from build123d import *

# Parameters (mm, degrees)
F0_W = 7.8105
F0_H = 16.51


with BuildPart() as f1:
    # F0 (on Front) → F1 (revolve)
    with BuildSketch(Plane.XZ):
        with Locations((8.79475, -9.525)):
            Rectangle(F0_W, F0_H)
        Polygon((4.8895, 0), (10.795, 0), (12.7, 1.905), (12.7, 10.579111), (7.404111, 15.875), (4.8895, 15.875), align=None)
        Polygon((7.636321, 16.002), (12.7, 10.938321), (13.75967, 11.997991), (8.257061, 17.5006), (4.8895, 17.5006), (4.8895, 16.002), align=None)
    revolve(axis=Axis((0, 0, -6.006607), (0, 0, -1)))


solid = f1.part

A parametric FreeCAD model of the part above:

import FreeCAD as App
import Part
import Sketcher
from FreeCAD import Vector
Q = App.Units.Quantity


def add_polygon(sketch, points):
    """Adds a closed chain of lines whose ends are joined by coincident constraints."""
    first, n = sketch.GeometryCount, len(points)
    for a, b in zip(points, points[1:] + points[:1]):
        sketch.addGeometry(Part.LineSegment(App.Vector(*a, 0), App.Vector(*b, 0)), False)
    for i in range(n):
        sketch.addConstraint(Sketcher.Constraint("Coincident", first + i, 2, first + (i + 1) % n, 1))

doc = App.newDocument("Part")
params = doc.addObject("Spreadsheet::Sheet", "Params")
for row, (alias, value) in enumerate([
    ("sketch1_height", "0.65 in"),
    ("sketch1_height2", "0.625 in"),
    ("sketch1_height3", "0.059 in"),
    ("sketch1_length", "0.059 in"),
    ("revolution_angle", "360 deg"),
], start=1):
    params.set(f"A{row}", alias)
    params.set(f"B{row}", "=" + value)
    params.setAlias(f"B{row}", alias)

body = doc.addObject("PartDesign::Body", "Body")
body.AllowCompound = True

# Sketch on XZ plane
sketch1 = body.newObject("Sketcher::SketchObject", "Sketch")
sketch1.AttachmentSupport = (doc.getObject("XZ_Plane"), [""])
sketch1.MapMode = "FlatFace"
add_polygon(sketch1, [(4.9, -1.3), (4.9, -17.8), (12.7, -17.8), (12.7, -1.3)])  # lines 0-3
add_polygon(sketch1, [(4.9, 0), (10.8, 0), (12.7, 1.9), (12.7, 10.6), (7.4, 15.9), (4.9, 15.9)])  # lines 4-9
add_polygon(sketch1, [(7.6, 16), (12.7, 10.9), (13.8, 12), (8.3, 17.5), (4.9, 17.5), (4.9, 16)])  # lines 10-15
sketch1.addConstraint(Sketcher.Constraint("Vertical", 0))
sketch1.addConstraint(Sketcher.Constraint("Horizontal", 1))
sketch1.addConstraint(Sketcher.Constraint("Vertical", 2))
sketch1.addConstraint(Sketcher.Constraint("Horizontal", 3))
sketch1.addConstraint(Sketcher.Constraint("Horizontal", 4))
sketch1.addConstraint(Sketcher.Constraint("Vertical", 6))
sketch1.addConstraint(Sketcher.Constraint("Horizontal", 8))
sketch1.addConstraint(Sketcher.Constraint("Vertical", 9))
sketch1.addConstraint(Sketcher.Constraint("Horizontal", 13))
sketch1.addConstraint(Sketcher.Constraint("Vertical", 14))
sketch1.addConstraint(Sketcher.Constraint("Horizontal", 15))
sketch1.addConstraint(Sketcher.Constraint("PointOnObject", 4, 2, -1))
sketch1.addConstraint(Sketcher.Constraint("Perpendicular", 5, 7))
sketch1.addConstraint(Sketcher.Constraint("Parallel", 7, 10))
sketch1.addConstraint(Sketcher.Constraint("Perpendicular", 10, 11))
sketch1.addConstraint(Sketcher.Constraint("Perpendicular", 11, 12))
sketch1.addConstraint(Sketcher.Constraint("Vertical", 2, 2, 5, 2))
sketch1.addConstraint(Sketcher.Constraint("Vertical", 3, 2, 8, 2))
sketch1.addConstraint(Sketcher.Constraint("Vertical", 6, 2, 10, 2))
sketch1.addConstraint(Sketcher.Constraint("Vertical", 9, 2, 13, 2))
sketch1.addConstraint(Sketcher.Constraint("Angle", 5, Q("45 deg")))
sketch1.addConstraint(Sketcher.Constraint("DistanceY", 0, 2, 0, 1, Q("0.65 in")))
sketch1.addConstraint(Sketcher.Constraint("DistanceY", 0, 2, -1, 1, Q("0.7 in")))
sketch1.addConstraint(Sketcher.Constraint("DistanceX", -1, 1, 1, 2, Q("0.5 in")))
sketch1.addConstraint(Sketcher.Constraint("DistanceY", 9, 2, 9, 1, Q("0.625 in")))
sketch1.addConstraint(Sketcher.Constraint("DistanceY", 14, 2, 14, 1, Q("0.059 in")))
sketch1.addConstraint(Sketcher.Constraint("DistanceY", -1, 1, 14, 2, Q("0.63 in")))
sketch1.addConstraint(Sketcher.Constraint("DistanceY", 5, 2, 7, 2, Q("0.55 in")))
sketch1.addConstraint(Sketcher.Constraint("Distance", 11, Q("0.059 in")))
sketch1.addConstraint(Sketcher.Constraint("DistanceX", 1, 1, 1, 2, Q("0.3075 in")))
sketch1.addConstraint(Sketcher.Constraint("DistanceX", 8, 2, 8, 1, Q("2.514611 mm")))
sketch1.addConstraint(Sketcher.Constraint("DistanceX", 13, 2, 13, 1, Q("3.367561 mm")))
sketch1.setExpression("Constraints[37]", "Params.sketch1_height")
sketch1.setExpression("Constraints[40]", "Params.sketch1_height2")
sketch1.setExpression("Constraints[41]", "Params.sketch1_height3")
sketch1.setExpression("Constraints[44]", "Params.sketch1_length")
revolution = body.newObject("PartDesign::Revolution", "Revolution")
revolution.Profile = sketch1
revolution.ReferenceAxis = (sketch1, ["V_Axis"])
revolution.setExpression("Angle", "Params.revolution_angle")

doc.recompute()
